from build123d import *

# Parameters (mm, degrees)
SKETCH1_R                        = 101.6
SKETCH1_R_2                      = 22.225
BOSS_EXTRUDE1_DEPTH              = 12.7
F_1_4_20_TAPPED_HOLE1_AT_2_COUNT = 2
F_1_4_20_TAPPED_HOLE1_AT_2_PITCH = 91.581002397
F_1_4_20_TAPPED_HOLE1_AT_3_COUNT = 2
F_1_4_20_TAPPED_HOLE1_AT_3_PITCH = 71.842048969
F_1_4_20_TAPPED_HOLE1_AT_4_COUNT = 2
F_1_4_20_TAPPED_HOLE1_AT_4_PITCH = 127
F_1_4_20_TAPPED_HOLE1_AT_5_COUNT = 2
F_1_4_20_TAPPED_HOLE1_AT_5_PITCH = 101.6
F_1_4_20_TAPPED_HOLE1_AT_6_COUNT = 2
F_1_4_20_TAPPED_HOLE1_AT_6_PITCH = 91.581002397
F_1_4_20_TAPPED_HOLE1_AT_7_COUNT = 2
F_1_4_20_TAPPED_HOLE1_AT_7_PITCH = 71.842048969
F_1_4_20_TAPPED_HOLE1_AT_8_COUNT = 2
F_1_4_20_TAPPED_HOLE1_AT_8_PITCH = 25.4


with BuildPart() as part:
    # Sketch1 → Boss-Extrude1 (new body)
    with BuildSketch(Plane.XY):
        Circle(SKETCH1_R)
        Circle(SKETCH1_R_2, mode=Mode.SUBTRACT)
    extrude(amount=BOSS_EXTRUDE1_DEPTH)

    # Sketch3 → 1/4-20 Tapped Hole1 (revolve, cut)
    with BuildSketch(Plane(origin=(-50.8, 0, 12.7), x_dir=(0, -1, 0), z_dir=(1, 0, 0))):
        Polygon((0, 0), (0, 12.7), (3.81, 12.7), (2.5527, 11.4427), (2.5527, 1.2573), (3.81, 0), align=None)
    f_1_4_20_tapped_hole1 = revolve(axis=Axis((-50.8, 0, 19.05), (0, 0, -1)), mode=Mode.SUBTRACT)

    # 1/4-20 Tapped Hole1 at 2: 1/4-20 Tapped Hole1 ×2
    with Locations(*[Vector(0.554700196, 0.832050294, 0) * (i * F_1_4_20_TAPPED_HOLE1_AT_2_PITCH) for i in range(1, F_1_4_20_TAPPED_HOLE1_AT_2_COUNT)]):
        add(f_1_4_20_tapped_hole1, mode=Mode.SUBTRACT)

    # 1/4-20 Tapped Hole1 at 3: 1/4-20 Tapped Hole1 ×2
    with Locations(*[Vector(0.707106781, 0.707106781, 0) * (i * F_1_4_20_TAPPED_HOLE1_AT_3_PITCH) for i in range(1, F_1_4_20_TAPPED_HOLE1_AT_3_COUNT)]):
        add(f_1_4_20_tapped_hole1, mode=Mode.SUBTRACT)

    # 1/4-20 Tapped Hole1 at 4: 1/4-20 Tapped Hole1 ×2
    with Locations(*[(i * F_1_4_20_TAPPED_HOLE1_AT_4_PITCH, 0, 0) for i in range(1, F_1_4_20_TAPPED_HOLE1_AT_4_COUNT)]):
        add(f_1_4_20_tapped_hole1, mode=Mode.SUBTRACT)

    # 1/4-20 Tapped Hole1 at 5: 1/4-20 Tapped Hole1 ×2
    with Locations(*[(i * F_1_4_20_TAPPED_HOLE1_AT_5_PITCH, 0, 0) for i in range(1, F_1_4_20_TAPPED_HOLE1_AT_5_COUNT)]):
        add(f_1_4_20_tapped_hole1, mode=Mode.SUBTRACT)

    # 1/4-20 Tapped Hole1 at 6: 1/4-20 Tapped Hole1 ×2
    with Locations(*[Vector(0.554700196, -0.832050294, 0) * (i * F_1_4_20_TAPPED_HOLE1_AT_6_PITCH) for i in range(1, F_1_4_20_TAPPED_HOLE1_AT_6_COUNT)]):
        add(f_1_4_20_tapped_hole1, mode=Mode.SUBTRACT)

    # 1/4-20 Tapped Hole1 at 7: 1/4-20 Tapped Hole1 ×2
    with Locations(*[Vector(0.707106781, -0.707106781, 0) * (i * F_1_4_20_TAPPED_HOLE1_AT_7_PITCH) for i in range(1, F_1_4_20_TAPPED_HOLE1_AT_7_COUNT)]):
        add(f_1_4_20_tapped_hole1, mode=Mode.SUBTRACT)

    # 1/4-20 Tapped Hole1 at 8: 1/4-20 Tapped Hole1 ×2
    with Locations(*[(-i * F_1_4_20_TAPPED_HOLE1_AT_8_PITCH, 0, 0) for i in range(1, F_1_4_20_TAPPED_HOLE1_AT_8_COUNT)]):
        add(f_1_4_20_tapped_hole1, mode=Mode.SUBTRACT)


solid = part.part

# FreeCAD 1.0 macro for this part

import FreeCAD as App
import Part
import Sketcher
from FreeCAD import Vector
Q = App.Units.Quantity

doc = App.newDocument("Part")
params = doc.addObject("Spreadsheet::Sheet", "Params")
for row, (alias, value) in enumerate([
    ("sketch1_diameter", "8 in"),
    ("sketch1_diameter2", "1.75 in"),
    ("pad1_length", "0.5 in"),
    ("sketch2_height", "0.5 in"),
    ("sketch2_width", "0.15 in"),
    ("sketch2_height2", "0.401 in"),
    ("groove_angle", "360 deg"),
    ("linearpattern_pitch", "91.581002 mm"),
    ("linearpattern2_pitch", "71.842049 mm"),
    ("linearpattern3_pitch", "5 in"),
    ("linearpattern4_pitch", "4 in"),
    ("linearpattern5_pitch", "91.581002 mm"),
    ("linearpattern6_pitch", "71.842049 mm"),
    ("linearpattern7_pitch", "1 in"),
], start=1):
    params.set(f"A{row}", alias)
    params.set(f"B{row}", "=" + value)
    params.setAlias(f"B{row}", alias)

body = doc.addObject("PartDesign::Body", "Body")

# Sketch on XY plane
sketch1 = body.newObject("Sketcher::SketchObject", "Sketch")
sketch1.AttachmentSupport = (doc.getObject("XY_Plane"), [""])
sketch1.MapMode = "FlatFace"
sketch1.addGeometry(Part.Circle(Vector(0, 0, 0), Vector(0, 0, 1), 102), False)
sketch1.addGeometry(Part.Circle(Vector(0, 0, 0), Vector(0, 0, 1), 22), False)
sketch1.addConstraint(Sketcher.Constraint("Coincident", 0, 3, -1, 1))
sketch1.addConstraint(Sketcher.Constraint("Coincident", 1, 3, -1, 1))
sketch1.addConstraint(Sketcher.Constraint("Diameter", 0, Q("8 in")))
sketch1.addConstraint(Sketcher.Constraint("Diameter", 1, Q("1.75 in")))
sketch1.setExpression("Constraints[2]", "Params.sketch1_diameter")
sketch1.setExpression("Constraints[3]", "Params.sketch1_diameter2")
pad1 = body.newObject("PartDesign::Pad", "Pad")
pad1.Profile = sketch1
pad1.setExpression("Length", "Params.pad1_length")

# Sketch on YZ plane
sketch2 = body.newObject("Sketcher::SketchObject", "Sketch001")
sketch2.AttachmentSupport = (doc.getObject("YZ_Plane"), [""])
sketch2.MapMode = "FlatFace"
sketch2.AttachmentOffset = App.Placement(Vector(0, 0, -2 * 25.4), App.Rotation())
sketch2.addGeometry(Part.LineSegment(Vector(0, 0, 0), Vector(0, 12.7, 0)), False)
sketch2.addGeometry(Part.LineSegment(Vector(0, 12.7, 0), Vector(-3.8, 12.7, 0)), False)
sketch2.addGeometry(Part.LineSegment(Vector(-3.8, 12.7, 0), Vector(-2.6, 11.4, 0)), False)
sketch2.addGeometry(Part.LineSegment(Vector(-2.6, 11.4, 0), Vector(-2.6, 1.3, 0)), False)
sketch2.addGeometry(Part.LineSegment(Vector(-2.6, 1.3, 0), Vector(-3.8, 0, 0)), False)
sketch2.addGeometry(Part.LineSegment(Vector(-3.8, 0, 0), Vector(0, 0, 0)), False)
sketch2.addConstraint(Sketcher.Constraint("Coincident", 0, 2, 1, 1))
sketch2.addConstraint(Sketcher.Constraint("Coincident", 1, 2, 2, 1))
sketch2.addConstraint(Sketcher.Constraint("Coincident", 2, 2, 3, 1))
sketch2.addConstraint(Sketcher.Constraint("Coincident", 3, 2, 4, 1))
sketch2.addConstraint(Sketcher.Constraint("Coincident", 4, 2, 5, 1))
sketch2.addConstraint(Sketcher.Constraint("Coincident", 5, 2, 0, 1))
sketch2.addConstraint(Sketcher.Constraint("Vertical", 0))
sketch2.addConstraint(Sketcher.Constraint("Horizontal", 1))
sketch2.addConstraint(Sketcher.Constraint("Vertical", 3))
sketch2.addConstraint(Sketcher.Constraint("Horizontal", 5))
sketch2.addConstraint(Sketcher.Constraint("Coincident", 5, 2, -1, 1))
sketch2.addConstraint(Sketcher.Constraint("Perpendicular", 2, 4))
sketch2.addConstraint(Sketcher.Constraint("Vertical", 1, 2, 4, 2))
sketch2.addConstraint(Sketcher.Constraint("Equal", 2, 4))
sketch2.addConstraint(Sketcher.Constraint("DistanceY", 0, 1, 0, 2, Q("0.5 in")))
sketch2.addConstraint(Sketcher.Constraint("DistanceX", 1, 2, 1, 1, Q("0.15 in")))
sketch2.addConstraint(Sketcher.Constraint("DistanceY", 3, 2, 3, 1, Q("0.401 in")))
sketch2.setExpression("Constraints[14]", "Params.sketch2_height")
sketch2.setExpression("Constraints[15]", "Params.sketch2_width")
sketch2.setExpression("Constraints[16]", "Params.sketch2_height2")
groove = body.newObject("PartDesign::Groove", "Groove")
groove.Profile = sketch2
groove.ReferenceAxis = (sketch2, ["V_Axis"])
groove.setExpression("Angle", "Params.groove_angle")
doc.recompute()

datumline = body.newObject("PartDesign::Line", "DatumLine")
datumline.Placement = App.Placement(Vector(0, 0, 0), App.Rotation(Vector(0, 0, 1), Vector(0.554700196, 0.832050294, 0)))
linearpattern = body.newObject("PartDesign::LinearPattern", "LinearPattern")
linearpattern.Originals = [groove]
linearpattern.Direction = (datumline, [""])
linearpattern.Mode = "offset"
linearpattern.setExpression("Offset", "Params.linearpattern_pitch")
linearpattern.Occurrences = 2
body.Tip = linearpattern
doc.recompute()

datumline2 = body.newObject("PartDesign::Line", "DatumLine001")
datumline2.Placement = App.Placement(Vector(0, 0, 0), App.Rotation(Vector(0, 0, 1), Vector(0.707106781, 0.707106781, 0)))
linearpattern2 = body.newObject("PartDesign::LinearPattern", "LinearPattern001")
linearpattern2.Originals = [groove]
linearpattern2.Direction = (datumline2, [""])
linearpattern2.Mode = "offset"
linearpattern2.setExpression("Offset", "Params.linearpattern2_pitch")
linearpattern2.Occurrences = 2
body.Tip = linearpattern2
doc.recompute()

linearpattern3 = body.newObject("PartDesign::LinearPattern", "LinearPattern002")
linearpattern3.Originals = [groove]
linearpattern3.Direction = (doc.getObject("X_Axis"), [""])
linearpattern3.Mode = "offset"
linearpattern3.setExpression("Offset", "Params.linearpattern3_pitch")
linearpattern3.Occurrences = 2
body.Tip = linearpattern3
doc.recompute()

linearpattern4 = body.newObject("PartDesign::LinearPattern", "LinearPattern003")
linearpattern4.Originals = [groove]
linearpattern4.Direction = (doc.getObject("X_Axis"), [""])
linearpattern4.Mode = "offset"
linearpattern4.setExpression("Offset", "Params.linearpattern4_pitch")
linearpattern4.Occurrences = 2
body.Tip = linearpattern4
doc.recompute()

datumline3 = body.newObject("PartDesign::Line", "DatumLine002")
datumline3.Placement = App.Placement(Vector(0, 0, 0), App.Rotation(Vector(0, 0, 1), Vector(0.554700196, -0.832050294, 0)))
linearpattern5 = body.newObject("PartDesign::LinearPattern", "LinearPattern004")
linearpattern5.Originals = [groove]
linearpattern5.Direction = (datumline3, [""])
linearpattern5.Mode = "offset"
linearpattern5.setExpression("Offset", "Params.linearpattern5_pitch")
linearpattern5.Occurrences = 2
body.Tip = linearpattern5
doc.recompute()

datumline4 = body.newObject("PartDesign::Line", "DatumLine003")
datumline4.Placement = App.Placement(Vector(0, 0, 0), App.Rotation(Vector(0, 0, 1), Vector(0.707106781, -0.707106781, 0)))
linearpattern6 = body.newObject("PartDesign::LinearPattern", "LinearPattern005")
linearpattern6.Originals = [groove]
linearpattern6.Direction = (datumline4, [""])
linearpattern6.Mode = "offset"
linearpattern6.setExpression("Offset", "Params.linearpattern6_pitch")
linearpattern6.Occurrences = 2
body.Tip = linearpattern6
doc.recompute()

linearpattern7 = body.newObject("PartDesign::LinearPattern", "LinearPattern006")
linearpattern7.Originals = [groove]
linearpattern7.Direction = (doc.getObject("X_Axis"), [""])
linearpattern7.Mode = "offset"
linearpattern7.setExpression("Offset", "Params.linearpattern7_pitch")
linearpattern7.Occurrences = 2
linearpattern7.Reversed = True
body.Tip = linearpattern7

doc.recompute()
